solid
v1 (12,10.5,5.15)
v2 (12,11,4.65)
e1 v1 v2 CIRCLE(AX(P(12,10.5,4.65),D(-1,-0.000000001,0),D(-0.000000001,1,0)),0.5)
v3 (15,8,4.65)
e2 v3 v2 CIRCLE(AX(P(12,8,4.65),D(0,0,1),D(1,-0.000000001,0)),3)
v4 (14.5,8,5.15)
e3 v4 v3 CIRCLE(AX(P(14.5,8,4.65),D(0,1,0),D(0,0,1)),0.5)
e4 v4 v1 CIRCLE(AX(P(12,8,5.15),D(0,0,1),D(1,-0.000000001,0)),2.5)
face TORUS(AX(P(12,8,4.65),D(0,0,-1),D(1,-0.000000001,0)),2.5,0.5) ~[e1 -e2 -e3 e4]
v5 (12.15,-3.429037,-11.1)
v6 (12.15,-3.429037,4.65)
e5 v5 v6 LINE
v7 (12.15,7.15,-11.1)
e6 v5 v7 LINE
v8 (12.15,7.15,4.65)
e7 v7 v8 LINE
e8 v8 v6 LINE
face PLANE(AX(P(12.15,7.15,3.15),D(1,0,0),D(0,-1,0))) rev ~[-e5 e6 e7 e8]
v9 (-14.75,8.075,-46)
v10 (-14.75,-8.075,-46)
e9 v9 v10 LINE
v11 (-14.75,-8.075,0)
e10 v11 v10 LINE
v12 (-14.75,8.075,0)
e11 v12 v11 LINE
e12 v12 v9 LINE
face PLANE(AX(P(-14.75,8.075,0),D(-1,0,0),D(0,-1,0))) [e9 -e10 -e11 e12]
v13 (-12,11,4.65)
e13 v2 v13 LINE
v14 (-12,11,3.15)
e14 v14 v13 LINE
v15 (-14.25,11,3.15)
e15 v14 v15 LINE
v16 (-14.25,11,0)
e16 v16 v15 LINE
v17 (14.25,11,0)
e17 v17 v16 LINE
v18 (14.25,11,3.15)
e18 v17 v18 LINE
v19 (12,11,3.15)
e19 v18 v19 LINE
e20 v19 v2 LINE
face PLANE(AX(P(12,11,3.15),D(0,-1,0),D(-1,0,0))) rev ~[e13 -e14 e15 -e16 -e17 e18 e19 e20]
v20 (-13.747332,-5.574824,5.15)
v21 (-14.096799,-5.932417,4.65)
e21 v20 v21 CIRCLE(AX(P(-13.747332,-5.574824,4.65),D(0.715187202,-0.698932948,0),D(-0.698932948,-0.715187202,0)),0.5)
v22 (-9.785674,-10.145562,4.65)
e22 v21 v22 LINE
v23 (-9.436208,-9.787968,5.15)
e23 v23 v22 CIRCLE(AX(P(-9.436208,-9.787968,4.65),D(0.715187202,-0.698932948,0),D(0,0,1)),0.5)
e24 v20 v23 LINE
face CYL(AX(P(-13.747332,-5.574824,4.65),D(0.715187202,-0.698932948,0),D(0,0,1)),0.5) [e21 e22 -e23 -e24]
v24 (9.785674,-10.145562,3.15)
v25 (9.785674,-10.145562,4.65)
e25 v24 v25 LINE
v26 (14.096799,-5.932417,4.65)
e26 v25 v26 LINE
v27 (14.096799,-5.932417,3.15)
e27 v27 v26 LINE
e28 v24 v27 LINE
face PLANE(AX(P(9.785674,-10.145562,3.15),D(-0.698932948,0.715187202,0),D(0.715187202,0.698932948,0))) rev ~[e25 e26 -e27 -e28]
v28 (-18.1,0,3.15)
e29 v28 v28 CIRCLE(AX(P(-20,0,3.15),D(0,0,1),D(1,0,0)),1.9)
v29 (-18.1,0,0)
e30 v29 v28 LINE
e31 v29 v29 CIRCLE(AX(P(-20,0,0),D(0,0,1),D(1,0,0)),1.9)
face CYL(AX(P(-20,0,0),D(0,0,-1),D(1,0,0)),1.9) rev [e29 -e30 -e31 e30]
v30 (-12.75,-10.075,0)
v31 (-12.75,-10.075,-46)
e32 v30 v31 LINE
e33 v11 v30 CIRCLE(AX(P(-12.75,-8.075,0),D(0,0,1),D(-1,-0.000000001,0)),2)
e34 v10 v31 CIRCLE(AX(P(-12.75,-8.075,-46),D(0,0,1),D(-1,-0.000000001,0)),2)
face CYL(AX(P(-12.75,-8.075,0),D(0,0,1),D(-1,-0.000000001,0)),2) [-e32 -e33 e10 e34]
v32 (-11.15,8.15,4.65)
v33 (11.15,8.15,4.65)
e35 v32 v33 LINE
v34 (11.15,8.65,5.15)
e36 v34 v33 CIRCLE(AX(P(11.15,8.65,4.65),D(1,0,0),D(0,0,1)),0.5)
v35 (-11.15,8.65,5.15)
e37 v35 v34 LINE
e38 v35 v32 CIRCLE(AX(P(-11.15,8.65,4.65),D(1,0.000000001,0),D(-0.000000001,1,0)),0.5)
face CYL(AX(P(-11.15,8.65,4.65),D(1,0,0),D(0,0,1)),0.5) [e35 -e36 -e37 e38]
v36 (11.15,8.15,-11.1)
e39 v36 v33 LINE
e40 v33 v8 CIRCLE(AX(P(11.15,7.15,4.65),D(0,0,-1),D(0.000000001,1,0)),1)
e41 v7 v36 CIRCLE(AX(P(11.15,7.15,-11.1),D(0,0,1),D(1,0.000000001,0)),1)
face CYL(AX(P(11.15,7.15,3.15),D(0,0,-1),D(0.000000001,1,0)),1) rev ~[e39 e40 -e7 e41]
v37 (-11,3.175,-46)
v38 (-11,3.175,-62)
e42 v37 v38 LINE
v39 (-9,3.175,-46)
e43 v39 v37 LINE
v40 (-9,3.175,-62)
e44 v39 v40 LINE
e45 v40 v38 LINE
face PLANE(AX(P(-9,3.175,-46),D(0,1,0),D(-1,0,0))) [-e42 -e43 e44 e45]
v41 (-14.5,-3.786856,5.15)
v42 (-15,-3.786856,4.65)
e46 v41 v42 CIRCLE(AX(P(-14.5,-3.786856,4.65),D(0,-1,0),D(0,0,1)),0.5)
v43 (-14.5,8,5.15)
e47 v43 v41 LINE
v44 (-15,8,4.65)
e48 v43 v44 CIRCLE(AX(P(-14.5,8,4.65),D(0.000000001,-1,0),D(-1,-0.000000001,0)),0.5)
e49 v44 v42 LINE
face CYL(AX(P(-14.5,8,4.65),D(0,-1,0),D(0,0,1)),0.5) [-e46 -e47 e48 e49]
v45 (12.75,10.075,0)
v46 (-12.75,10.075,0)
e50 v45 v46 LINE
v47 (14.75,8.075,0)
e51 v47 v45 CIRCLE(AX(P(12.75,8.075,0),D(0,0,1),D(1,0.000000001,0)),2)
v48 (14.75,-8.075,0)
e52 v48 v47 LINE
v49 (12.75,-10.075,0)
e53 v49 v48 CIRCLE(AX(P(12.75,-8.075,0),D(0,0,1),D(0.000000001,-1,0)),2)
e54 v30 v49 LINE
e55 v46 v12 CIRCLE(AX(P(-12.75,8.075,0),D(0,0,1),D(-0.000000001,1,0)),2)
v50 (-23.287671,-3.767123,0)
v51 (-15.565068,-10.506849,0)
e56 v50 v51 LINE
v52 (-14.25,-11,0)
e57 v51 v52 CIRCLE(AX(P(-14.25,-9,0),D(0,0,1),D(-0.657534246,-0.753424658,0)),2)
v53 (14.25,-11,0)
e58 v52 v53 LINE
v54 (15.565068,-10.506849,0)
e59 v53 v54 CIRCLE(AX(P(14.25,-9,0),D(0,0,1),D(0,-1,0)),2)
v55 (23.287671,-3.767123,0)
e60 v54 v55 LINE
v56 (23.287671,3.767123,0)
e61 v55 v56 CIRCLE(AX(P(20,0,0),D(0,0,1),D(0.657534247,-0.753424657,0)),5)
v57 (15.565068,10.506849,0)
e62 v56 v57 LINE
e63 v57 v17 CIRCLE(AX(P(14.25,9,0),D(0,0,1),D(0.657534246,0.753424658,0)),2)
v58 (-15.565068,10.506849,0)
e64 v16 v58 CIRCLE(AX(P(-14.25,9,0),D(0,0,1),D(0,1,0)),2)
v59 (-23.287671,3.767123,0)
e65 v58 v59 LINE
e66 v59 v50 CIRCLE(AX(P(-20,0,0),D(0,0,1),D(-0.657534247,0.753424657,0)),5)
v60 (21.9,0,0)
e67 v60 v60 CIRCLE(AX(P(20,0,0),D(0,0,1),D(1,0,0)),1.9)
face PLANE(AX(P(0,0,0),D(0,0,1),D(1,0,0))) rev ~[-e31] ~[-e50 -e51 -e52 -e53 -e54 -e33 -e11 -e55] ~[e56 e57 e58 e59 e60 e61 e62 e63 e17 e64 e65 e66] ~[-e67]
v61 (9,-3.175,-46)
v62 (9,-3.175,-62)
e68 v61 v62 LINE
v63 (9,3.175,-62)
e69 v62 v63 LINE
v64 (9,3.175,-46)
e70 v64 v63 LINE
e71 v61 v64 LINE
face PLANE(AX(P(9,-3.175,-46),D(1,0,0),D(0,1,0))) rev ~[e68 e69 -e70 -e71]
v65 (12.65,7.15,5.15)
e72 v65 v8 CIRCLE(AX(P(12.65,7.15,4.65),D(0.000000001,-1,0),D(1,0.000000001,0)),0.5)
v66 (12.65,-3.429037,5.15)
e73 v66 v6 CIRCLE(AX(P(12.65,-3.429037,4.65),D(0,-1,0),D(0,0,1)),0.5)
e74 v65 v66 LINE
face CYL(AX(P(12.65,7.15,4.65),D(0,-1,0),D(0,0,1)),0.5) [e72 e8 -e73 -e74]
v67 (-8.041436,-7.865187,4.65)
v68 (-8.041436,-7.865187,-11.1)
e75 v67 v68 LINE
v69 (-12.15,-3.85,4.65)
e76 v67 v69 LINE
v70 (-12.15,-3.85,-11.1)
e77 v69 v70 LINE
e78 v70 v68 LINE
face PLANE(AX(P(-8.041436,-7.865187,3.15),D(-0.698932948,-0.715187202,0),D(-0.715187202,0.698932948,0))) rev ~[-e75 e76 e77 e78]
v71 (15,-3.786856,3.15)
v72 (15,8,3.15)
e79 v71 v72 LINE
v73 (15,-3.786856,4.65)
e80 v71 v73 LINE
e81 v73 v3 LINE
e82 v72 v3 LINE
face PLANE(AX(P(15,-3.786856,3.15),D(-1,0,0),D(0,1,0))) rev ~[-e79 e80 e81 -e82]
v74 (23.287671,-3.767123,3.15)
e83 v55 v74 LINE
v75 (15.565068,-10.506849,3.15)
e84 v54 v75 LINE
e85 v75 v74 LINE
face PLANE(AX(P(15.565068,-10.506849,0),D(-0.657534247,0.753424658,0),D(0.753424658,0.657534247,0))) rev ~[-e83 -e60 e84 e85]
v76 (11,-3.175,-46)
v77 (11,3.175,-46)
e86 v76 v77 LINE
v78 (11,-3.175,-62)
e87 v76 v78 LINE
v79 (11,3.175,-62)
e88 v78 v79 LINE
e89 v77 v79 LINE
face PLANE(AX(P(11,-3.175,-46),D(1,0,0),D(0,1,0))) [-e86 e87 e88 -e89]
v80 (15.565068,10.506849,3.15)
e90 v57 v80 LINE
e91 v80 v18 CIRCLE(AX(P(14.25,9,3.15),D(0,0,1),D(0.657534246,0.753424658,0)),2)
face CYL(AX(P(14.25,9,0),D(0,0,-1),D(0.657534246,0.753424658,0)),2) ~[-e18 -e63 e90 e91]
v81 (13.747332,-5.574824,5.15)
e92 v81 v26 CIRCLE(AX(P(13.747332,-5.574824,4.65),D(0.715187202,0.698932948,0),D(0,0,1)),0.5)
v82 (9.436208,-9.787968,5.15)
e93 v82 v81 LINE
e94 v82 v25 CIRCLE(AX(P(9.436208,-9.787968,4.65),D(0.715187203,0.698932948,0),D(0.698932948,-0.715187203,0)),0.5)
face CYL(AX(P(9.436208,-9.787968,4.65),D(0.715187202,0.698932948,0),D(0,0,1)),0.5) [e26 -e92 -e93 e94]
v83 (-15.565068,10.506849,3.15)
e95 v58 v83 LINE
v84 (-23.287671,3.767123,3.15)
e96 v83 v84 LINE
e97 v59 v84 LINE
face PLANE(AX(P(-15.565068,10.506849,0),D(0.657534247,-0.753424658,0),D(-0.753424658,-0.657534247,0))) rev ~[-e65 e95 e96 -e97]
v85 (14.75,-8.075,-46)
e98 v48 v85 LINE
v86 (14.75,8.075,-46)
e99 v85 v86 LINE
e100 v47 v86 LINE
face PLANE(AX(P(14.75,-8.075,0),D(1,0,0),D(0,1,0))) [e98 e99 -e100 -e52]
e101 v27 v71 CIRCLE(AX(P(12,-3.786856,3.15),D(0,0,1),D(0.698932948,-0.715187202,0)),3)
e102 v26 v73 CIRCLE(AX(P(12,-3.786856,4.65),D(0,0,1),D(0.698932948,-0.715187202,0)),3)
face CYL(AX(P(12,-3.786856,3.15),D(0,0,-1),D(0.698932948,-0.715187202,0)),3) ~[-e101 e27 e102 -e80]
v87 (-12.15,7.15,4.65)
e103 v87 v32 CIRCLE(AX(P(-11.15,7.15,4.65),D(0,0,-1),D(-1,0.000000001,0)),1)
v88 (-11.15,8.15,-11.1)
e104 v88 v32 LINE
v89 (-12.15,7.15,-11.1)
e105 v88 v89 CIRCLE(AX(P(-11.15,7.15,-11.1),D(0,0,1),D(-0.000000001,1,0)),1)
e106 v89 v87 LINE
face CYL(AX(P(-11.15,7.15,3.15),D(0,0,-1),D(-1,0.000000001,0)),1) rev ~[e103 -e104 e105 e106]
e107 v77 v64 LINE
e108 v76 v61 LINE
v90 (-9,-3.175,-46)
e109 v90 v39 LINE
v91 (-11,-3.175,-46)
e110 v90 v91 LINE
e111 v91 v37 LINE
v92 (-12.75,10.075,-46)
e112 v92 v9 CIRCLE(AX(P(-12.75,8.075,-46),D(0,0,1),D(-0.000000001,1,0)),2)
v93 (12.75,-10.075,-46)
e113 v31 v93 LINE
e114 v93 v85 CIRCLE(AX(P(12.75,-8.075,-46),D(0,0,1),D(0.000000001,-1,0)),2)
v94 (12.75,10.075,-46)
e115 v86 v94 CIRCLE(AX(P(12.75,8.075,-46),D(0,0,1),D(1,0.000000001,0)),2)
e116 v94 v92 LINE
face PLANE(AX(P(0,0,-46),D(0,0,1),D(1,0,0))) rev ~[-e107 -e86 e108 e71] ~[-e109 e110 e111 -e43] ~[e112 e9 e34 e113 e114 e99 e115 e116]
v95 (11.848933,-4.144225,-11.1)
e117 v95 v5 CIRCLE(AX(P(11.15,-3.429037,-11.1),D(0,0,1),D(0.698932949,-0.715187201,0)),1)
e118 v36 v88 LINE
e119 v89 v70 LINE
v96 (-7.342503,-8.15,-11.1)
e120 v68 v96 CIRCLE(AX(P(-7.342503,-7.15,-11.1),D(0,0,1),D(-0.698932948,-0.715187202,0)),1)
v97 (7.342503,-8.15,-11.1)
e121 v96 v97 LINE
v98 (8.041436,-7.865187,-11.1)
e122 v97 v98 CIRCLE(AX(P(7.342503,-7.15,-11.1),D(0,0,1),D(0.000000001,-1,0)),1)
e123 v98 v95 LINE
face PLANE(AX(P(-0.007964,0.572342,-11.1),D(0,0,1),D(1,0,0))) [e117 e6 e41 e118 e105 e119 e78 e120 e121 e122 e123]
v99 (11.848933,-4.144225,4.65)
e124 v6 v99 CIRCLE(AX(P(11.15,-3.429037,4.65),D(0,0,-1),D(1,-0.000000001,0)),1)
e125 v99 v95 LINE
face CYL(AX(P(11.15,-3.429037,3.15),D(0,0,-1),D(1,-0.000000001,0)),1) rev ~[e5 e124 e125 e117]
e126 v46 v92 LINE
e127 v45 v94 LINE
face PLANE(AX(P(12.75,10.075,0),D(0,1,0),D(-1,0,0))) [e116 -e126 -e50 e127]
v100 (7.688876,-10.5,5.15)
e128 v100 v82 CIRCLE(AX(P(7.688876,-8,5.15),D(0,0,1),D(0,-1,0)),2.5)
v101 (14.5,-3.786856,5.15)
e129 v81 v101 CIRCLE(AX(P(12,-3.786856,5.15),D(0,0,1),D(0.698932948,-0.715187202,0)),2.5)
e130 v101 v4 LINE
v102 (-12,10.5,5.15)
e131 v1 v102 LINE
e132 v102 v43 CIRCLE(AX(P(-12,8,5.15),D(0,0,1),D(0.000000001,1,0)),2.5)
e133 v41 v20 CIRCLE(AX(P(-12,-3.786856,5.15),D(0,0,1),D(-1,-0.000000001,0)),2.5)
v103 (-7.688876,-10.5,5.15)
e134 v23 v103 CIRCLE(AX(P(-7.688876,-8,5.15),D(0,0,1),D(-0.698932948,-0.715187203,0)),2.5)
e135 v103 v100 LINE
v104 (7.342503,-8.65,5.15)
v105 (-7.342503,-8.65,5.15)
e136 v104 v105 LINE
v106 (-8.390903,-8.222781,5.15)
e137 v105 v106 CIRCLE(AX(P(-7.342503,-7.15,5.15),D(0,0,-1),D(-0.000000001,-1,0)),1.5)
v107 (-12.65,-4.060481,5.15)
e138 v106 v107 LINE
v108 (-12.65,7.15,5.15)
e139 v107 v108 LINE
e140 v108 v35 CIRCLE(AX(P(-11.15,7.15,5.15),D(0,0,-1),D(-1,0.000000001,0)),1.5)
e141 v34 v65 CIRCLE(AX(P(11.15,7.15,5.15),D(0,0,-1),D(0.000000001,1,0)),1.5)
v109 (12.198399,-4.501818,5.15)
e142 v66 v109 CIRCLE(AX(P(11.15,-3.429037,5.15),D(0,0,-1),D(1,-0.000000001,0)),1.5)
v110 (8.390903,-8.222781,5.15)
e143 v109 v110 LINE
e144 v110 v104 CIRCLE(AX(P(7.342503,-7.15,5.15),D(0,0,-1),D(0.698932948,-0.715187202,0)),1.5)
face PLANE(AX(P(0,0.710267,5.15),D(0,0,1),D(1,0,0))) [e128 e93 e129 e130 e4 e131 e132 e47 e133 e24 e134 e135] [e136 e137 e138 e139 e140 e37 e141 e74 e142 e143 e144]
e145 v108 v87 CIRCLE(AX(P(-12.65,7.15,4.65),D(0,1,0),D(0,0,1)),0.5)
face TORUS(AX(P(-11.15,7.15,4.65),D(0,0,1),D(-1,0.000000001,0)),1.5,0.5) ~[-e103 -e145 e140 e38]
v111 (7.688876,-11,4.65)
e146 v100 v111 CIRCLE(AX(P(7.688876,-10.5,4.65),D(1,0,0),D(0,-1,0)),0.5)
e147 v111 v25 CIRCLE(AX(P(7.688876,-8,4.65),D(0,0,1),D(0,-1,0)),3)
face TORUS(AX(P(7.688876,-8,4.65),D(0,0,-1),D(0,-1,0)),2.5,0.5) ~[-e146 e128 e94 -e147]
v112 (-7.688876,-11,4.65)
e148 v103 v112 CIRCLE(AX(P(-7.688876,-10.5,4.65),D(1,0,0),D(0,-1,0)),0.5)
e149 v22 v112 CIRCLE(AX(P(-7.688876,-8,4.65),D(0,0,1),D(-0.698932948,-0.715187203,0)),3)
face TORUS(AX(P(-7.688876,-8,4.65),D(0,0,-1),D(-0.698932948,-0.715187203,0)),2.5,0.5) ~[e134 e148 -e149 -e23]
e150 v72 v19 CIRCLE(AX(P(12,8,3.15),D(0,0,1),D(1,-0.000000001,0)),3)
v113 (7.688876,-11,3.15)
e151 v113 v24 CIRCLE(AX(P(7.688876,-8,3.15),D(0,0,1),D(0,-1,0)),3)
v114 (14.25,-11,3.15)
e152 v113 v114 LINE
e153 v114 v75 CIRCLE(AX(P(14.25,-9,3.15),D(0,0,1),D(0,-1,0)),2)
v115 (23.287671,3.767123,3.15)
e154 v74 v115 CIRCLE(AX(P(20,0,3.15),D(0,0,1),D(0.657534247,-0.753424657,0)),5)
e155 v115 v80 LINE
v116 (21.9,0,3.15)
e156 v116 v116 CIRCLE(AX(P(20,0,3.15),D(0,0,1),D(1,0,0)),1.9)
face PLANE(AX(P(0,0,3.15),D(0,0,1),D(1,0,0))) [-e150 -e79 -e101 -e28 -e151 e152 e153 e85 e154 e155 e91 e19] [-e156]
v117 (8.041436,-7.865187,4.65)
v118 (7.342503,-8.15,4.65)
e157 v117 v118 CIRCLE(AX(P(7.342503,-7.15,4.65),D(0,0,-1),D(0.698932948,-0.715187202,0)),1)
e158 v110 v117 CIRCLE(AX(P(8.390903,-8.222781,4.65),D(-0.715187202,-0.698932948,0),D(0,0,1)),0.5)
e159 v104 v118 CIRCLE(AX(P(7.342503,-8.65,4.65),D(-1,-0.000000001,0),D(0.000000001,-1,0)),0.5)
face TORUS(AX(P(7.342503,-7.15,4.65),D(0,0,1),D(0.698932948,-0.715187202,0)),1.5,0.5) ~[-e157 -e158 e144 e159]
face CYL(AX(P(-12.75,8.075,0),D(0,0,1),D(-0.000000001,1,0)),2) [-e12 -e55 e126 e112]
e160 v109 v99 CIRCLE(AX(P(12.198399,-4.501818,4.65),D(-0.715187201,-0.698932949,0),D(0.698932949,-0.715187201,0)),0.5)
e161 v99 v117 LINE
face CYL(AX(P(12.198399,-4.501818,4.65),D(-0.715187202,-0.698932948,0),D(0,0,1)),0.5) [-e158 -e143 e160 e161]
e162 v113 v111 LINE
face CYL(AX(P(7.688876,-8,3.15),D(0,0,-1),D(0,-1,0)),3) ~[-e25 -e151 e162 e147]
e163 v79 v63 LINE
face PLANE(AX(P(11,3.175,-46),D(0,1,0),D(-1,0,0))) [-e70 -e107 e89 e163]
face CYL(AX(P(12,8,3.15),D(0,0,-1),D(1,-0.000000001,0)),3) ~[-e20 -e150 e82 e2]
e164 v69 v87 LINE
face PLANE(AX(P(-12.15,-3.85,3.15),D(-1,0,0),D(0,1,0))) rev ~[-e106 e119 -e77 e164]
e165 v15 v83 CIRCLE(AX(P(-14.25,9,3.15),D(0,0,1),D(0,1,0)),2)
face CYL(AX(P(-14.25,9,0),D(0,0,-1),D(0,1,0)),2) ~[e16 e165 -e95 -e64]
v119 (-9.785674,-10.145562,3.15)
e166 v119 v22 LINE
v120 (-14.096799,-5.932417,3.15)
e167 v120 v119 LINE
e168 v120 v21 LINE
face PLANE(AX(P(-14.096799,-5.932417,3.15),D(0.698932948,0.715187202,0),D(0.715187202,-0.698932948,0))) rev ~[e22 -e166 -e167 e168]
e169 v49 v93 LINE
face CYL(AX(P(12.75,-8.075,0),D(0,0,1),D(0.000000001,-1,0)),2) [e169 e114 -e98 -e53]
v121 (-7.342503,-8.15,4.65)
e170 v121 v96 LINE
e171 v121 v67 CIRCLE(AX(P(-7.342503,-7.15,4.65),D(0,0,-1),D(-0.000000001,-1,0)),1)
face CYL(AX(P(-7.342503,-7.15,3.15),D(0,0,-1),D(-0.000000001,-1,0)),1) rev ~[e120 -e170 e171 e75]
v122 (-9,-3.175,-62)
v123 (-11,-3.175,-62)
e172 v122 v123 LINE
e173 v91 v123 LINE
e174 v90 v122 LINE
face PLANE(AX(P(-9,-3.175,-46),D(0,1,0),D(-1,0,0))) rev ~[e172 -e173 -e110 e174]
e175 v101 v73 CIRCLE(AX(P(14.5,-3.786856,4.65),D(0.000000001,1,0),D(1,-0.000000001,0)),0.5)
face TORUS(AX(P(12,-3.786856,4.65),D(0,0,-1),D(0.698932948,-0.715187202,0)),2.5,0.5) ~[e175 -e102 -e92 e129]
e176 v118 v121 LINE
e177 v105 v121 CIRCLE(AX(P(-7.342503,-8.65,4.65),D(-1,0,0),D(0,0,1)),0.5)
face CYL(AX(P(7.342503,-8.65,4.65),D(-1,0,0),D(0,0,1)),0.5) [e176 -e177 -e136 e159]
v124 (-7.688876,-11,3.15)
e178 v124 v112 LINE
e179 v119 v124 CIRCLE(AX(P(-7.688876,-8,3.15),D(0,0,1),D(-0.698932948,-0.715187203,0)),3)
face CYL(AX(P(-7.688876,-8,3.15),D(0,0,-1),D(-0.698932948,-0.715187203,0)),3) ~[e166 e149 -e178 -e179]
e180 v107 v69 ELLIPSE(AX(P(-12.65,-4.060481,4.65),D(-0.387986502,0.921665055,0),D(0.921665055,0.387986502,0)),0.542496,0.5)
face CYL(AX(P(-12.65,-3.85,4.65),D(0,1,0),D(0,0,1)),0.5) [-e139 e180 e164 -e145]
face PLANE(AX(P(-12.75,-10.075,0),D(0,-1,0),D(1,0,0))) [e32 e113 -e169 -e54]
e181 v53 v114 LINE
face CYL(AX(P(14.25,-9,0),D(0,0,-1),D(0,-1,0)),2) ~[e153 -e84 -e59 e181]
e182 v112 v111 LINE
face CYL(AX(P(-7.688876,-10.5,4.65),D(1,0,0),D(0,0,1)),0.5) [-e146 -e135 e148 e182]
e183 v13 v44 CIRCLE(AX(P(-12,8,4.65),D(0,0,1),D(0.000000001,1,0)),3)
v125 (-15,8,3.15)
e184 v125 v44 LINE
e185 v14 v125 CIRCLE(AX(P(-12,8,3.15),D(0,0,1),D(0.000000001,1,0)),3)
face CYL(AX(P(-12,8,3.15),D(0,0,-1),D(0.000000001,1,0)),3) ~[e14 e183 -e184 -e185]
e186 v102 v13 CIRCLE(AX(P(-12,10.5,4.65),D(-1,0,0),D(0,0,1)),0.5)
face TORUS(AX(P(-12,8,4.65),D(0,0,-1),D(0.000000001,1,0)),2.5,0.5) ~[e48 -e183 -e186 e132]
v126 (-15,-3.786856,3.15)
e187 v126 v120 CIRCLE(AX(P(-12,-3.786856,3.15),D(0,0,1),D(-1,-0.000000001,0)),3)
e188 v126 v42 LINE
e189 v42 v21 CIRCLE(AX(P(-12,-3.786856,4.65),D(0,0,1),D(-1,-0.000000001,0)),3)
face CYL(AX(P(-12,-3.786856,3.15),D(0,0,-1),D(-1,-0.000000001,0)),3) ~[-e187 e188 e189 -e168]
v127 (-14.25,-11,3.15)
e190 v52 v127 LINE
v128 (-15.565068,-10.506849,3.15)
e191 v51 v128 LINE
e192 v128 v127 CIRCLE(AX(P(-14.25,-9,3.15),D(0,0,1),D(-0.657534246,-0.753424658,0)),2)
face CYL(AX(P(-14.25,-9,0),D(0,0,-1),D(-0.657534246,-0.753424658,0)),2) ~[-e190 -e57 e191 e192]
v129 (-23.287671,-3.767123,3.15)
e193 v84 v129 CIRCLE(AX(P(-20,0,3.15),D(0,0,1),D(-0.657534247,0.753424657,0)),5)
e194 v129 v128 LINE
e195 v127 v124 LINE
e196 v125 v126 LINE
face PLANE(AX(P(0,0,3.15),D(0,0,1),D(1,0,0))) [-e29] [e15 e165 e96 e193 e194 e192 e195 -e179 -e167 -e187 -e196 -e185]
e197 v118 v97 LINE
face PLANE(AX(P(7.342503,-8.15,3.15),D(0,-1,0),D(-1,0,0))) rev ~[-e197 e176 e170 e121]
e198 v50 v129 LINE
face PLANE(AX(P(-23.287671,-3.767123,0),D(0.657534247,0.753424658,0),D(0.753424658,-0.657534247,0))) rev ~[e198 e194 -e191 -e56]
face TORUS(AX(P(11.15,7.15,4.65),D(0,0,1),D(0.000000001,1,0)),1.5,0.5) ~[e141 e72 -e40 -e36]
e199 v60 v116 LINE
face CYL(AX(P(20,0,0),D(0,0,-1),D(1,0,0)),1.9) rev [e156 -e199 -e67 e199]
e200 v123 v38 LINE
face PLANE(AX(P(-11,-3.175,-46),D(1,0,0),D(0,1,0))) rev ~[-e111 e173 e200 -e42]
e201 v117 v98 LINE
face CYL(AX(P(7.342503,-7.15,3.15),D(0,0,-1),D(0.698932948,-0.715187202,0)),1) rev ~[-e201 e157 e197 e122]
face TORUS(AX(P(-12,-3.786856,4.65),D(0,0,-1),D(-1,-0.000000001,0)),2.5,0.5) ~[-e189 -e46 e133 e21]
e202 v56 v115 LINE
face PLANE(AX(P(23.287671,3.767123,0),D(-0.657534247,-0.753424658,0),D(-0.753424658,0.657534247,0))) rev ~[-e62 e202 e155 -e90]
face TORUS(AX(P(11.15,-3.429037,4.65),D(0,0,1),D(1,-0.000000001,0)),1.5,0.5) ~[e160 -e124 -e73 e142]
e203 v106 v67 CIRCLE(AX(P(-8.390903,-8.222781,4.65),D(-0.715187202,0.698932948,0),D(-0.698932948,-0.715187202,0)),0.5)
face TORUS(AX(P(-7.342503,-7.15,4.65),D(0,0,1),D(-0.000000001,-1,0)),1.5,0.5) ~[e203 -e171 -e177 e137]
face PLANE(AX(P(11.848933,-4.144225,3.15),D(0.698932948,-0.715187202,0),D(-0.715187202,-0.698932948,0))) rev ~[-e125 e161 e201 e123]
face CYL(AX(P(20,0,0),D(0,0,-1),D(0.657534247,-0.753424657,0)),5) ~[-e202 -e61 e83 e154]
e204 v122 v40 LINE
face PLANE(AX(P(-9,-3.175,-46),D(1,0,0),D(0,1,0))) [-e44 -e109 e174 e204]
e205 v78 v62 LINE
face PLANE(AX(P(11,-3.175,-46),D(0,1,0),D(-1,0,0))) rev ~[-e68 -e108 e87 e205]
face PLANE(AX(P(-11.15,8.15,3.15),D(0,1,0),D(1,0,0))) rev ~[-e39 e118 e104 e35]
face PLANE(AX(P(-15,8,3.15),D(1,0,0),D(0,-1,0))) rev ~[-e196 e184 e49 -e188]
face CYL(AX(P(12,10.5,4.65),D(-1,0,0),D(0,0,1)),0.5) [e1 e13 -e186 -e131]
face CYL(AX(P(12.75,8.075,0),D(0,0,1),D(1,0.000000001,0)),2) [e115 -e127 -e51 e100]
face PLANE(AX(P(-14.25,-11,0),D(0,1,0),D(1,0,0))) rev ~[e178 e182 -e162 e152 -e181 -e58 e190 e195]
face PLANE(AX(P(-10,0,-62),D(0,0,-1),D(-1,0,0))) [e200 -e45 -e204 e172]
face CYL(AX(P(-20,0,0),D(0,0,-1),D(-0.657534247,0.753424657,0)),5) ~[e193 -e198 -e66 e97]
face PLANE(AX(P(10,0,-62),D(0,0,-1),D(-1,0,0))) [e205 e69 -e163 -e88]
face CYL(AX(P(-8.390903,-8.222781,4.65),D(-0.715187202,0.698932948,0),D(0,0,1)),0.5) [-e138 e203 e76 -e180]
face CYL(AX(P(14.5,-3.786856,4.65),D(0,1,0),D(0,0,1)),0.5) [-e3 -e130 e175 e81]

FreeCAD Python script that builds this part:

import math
import FreeCAD as App
import Part
import Sketcher
Q = App.Units.Quantity


def edges_at(feature, points):
    """Names of the edges that pass closest to the given points."""
    edges = feature.Shape.Edges
    near = lambda p: min(range(len(edges)), key=lambda i: edges[i].distToShape(Part.Vertex(*p))[0])
    return sorted({f"Edge{near(p) + 1}" for p in points})

doc = App.newDocument("Part")
params = doc.addObject("Spreadsheet::Sheet", "Params")
for row, (alias, value) in enumerate([
    ("sketch1_radius", "5 mm"),
    ("sketch1_radius2", "2 mm"),
    ("sketch1_radius3", "1 mm"),
    ("sketch1_diameter", "3.8 mm"),
    ("sketch1_height", "11 mm"),
    ("pad1_length", "3.15 mm"),
    ("sketch2_radius", "3 mm"),
    ("sketch2_radius2", "1 mm"),
    ("sketch2_width", "24 mm"),
    ("sketch2_height", "11 mm"),
    ("sketch2_width2", "22.3 mm"),
    ("pad2_length", "2 mm"),
    ("fillet_radius", "0.5 mm"),
    ("sketch3_radius", "2 mm"),
    ("sketch3_width", "25.5 mm"),
    ("sketch3_height", "16.15 mm"),
    ("pad3_length", "46 mm"),
    ("sketch4_width", "2 mm"),
    ("sketch4_height", "6.35 mm"),
    ("pad4_length", "16 mm"),
    ("sketch5_radius", "1 mm"),
    ("sketch5_height", "11 mm"),
    ("sketch5_width", "22.3 mm"),
    ("pocket1_length", "11.1 mm"),
], start=1):
    params.set(f"A{row}", alias)
    params.set(f"B{row}", "=" + value)
    params.setAlias(f"B{row}", alias)

body = doc.addObject("PartDesign::Body", "Body")

# Sketch on XY plane
sketch1 = body.newObject("Sketcher::SketchObject", "Sketch")
sketch1.AttachmentSupport = (doc.getObject("XY_Plane"), [""])
sketch1.MapMode = "FlatFace"
sketch1.addGeometry(Part.LineSegment(App.Vector(-15.565068, 10.506849, 0), App.Vector(-23.287671, 3.767123, 0)), False)
sketch1.addGeometry(Part.ArcOfCircle(Part.Circle(App.Vector(-20, 0, 0), App.Vector(0, 0, 1), 5), math.radians(131.11209), math.radians(228.88791)), False)
sketch1.addGeometry(Part.LineSegment(App.Vector(-23.287671, -3.767123, 0), App.Vector(-15.565068, -10.506849, 0)), False)
sketch1.addGeometry(Part.ArcOfCircle(Part.Circle(App.Vector(-14.25, -9, 0), App.Vector(0, 0, 1), 2), math.radians(-131.11209), math.radians(-90)), False)
sketch1.addGeometry(Part.LineSegment(App.Vector(-14.25, -11, 0), App.Vector(14.25, -11, 0)), False)
sketch1.addGeometry(Part.ArcOfCircle(Part.Circle(App.Vector(14.25, -9, 0), App.Vector(0, 0, 1), 2), math.radians(-90), math.radians(-48.88791)), False)
sketch1.addGeometry(Part.LineSegment(App.Vector(15.565068, -10.506849, 0), App.Vector(23.287671, -3.767123, 0)), False)
sketch1.addGeometry(Part.ArcOfCircle(Part.Circle(App.Vector(20, 0, 0), App.Vector(0, 0, 1), 5), math.radians(-48.88791), math.radians(48.88791)), False)
sketch1.addGeometry(Part.LineSegment(App.Vector(23.287671, 3.767123, 0), App.Vector(15.565068, 10.506849, 0)), False)
sketch1.addGeometry(Part.ArcOfCircle(Part.Circle(App.Vector(14.25, 9, 0), App.Vector(0, 0, 1), 2), math.radians(48.88791), math.radians(90)), False)
sketch1.addGeometry(Part.LineSegment(App.Vector(14.25, 11, 0), App.Vector(-14.25, 11, 0)), False)
sketch1.addGeometry(Part.ArcOfCircle(Part.Circle(App.Vector(-14.25, 9, 0), App.Vector(0, 0, 1), 2), math.radians(90), math.radians(131.11209)), False)
sketch1.addGeometry(Part.Circle(App.Vector(-20, 0, 0), App.Vector(0, 0, 1), 1.9), False)
sketch1.addGeometry(Part.Circle(App.Vector(20, 0, 0), App.Vector(0, 0, 1), 1.9), False)
sketch1.addGeometry(Part.ArcOfCircle(Part.Circle(App.Vector(7.342503, -7.15, 0), App.Vector(0, 0, 1), 1), math.radians(-90), math.radians(-45.658543)), False)
sketch1.addGeometry(Part.LineSegment(App.Vector(7.342503, -8.15, 0), App.Vector(-7.342503, -8.15, 0)), False)
sketch1.addGeometry(Part.ArcOfCircle(Part.Circle(App.Vector(-7.342503, -7.15, 0), App.Vector(0, 0, 1), 1), math.radians(-134.341457), math.radians(-90)), False)
sketch1.addGeometry(Part.LineSegment(App.Vector(-8.041436, -7.865187, 0), App.Vector(-12.15, -3.85, 0)), False)
sketch1.addGeometry(Part.LineSegment(App.Vector(-12.15, -3.85, 0), App.Vector(-12.15, 7.15, 0)), False)
sketch1.addGeometry(Part.ArcOfCircle(Part.Circle(App.Vector(-11.15, 7.15, 0), App.Vector(0, 0, 1), 1), math.radians(90), math.radians(180)), False)
sketch1.addGeometry(Part.LineSegment(App.Vector(-11.15, 8.15, 0), App.Vector(11.15, 8.15, 0)), False)
sketch1.addGeometry(Part.ArcOfCircle(Part.Circle(App.Vector(11.15, 7.15, 0), App.Vector(0, 0, 1), 1), math.radians(0), math.radians(90)), False)
sketch1.addGeometry(Part.LineSegment(App.Vector(12.15, 7.15, 0), App.Vector(12.15, -3.429037, 0)), False)
sketch1.addGeometry(Part.ArcOfCircle(Part.Circle(App.Vector(11.15, -3.429037, 0), App.Vector(0, 0, 1), 1), math.radians(-45.658543), math.radians(0)), False)
sketch1.addGeometry(Part.LineSegment(App.Vector(11.848933, -4.144225, 0), App.Vector(8.041436, -7.865187, 0)), False)
sketch1.addConstraint(Sketcher.Constraint("Tangent", 0, 2, 1, 1))
sketch1.addConstraint(Sketcher.Constraint("Tangent", 1, 2, 2, 1))
sketch1.addConstraint(Sketcher.Constraint("Tangent", 2, 2, 3, 1))
sketch1.addConstraint(Sketcher.Constraint("Tangent", 3, 2, 4, 1))
sketch1.addConstraint(Sketcher.Constraint("Tangent", 4, 2, 5, 1))
sketch1.addConstraint(Sketcher.Constraint("Tangent", 5, 2, 6, 1))
sketch1.addConstraint(Sketcher.Constraint("Tangent", 6, 2, 7, 1))
sketch1.addConstraint(Sketcher.Constraint("Tangent", 7, 2, 8, 1))
sketch1.addConstraint(Sketcher.Constraint("Tangent", 8, 2, 9, 1))
sketch1.addConstraint(Sketcher.Constraint("Tangent", 9, 2, 10, 1))
sketch1.addConstraint(Sketcher.Constraint("Tangent", 10, 2, 11, 1))
sketch1.addConstraint(Sketcher.Constraint("Tangent", 11, 2, 0, 1))
sketch1.addConstraint(Sketcher.Constraint("Tangent", 14, 1, 15, 1))
sketch1.addConstraint(Sketcher.Constraint("Tangent", 15, 2, 16, 2))
sketch1.addConstraint(Sketcher.Constraint("Tangent", 16, 1, 17, 1))
sketch1.addConstraint(Sketcher.Constraint("Coincident", 17, 2, 18, 1))
sketch1.addConstraint(Sketcher.Constraint("Tangent", 18, 2, 19, 2))
sketch1.addConstraint(Sketcher.Constraint("Tangent", 19, 1, 20, 1))
sketch1.addConstraint(Sketcher.Constraint("Tangent", 20, 2, 21, 2))
sketch1.addConstraint(Sketcher.Constraint("Tangent", 21, 1, 22, 1))
sketch1.addConstraint(Sketcher.Constraint("Tangent", 22, 2, 23, 2))
sketch1.addConstraint(Sketcher.Constraint("Tangent", 23, 1, 24, 1))
sketch1.addConstraint(Sketcher.Constraint("Tangent", 24, 2, 14, 2))
sketch1.addConstraint(Sketcher.Constraint("Horizontal", 4))
sketch1.addConstraint(Sketcher.Constraint("Horizontal", 10))
sketch1.addConstraint(Sketcher.Constraint("Horizontal", 15))
sketch1.addConstraint(Sketcher.Constraint("Vertical", 18))
sketch1.addConstraint(Sketcher.Constraint("Horizontal", 20))
sketch1.addConstraint(Sketcher.Constraint("Vertical", 22))
sketch1.addConstraint(Sketcher.Constraint("Coincident", 12, 3, 1, 3))
sketch1.addConstraint(Sketcher.Constraint("Coincident", 13, 3, 7, 3))
sketch1.addConstraint(Sketcher.Constraint("Equal", 3, 5))
sketch1.addConstraint(Sketcher.Constraint("Equal", 1, 7))
sketch1.addConstraint(Sketcher.Constraint("Equal", 5, 9))
sketch1.addConstraint(Sketcher.Constraint("Equal", 9, 11))
sketch1.addConstraint(Sketcher.Constraint("Equal", 12, 13))
sketch1.addConstraint(Sketcher.Constraint("Equal", 14, 16))
sketch1.addConstraint(Sketcher.Constraint("Equal", 16, 19))
sketch1.addConstraint(Sketcher.Constraint("Equal", 19, 21))
sketch1.addConstraint(Sketcher.Constraint("Equal", 21, 23))
sketch1.addConstraint(Sketcher.Constraint("Symmetric", 1, 3, 7, 3, -1, 1))
sketch1.addConstraint(Sketcher.Constraint("Symmetric", 3, 3, 9, 3, -1, 1))
sketch1.addConstraint(Sketcher.Constraint("Symmetric", 2, 2, 5, 2, -2))
sketch1.addConstraint(Sketcher.Constraint("Symmetric", 16, 1, 24, 2, -2))
sketch1.addConstraint(Sketcher.Constraint("Parallel", 0, 6))
sketch1.addConstraint(Sketcher.Constraint("Radius", 1, Q("5 mm")))
sketch1.addConstraint(Sketcher.Constraint("Radius", 3, Q("2 mm")))
sketch1.addConstraint(Sketcher.Constraint("Radius", 14, Q("1 mm")))
sketch1.addConstraint(Sketcher.Constraint("Diameter", 12, Q("3.8 mm")))
sketch1.addConstraint(Sketcher.Constraint("DistanceY", 18, 1, 18, 2, Q("11 mm")))
sketch1.addConstraint(Sketcher.Constraint("DistanceX", 4, 1, 4, 2, Q("28.5 mm")))
sketch1.addConstraint(Sketcher.Constraint("DistanceX", 20, 1, 20, 2, Q("22.3 mm")))
sketch1.addConstraint(Sketcher.Constraint("DistanceX", 1, 3, -1, 1, Q("20 mm")))
sketch1.addConstraint(Sketcher.Constraint("DistanceY", 3, 3, -1, 1, Q("9 mm")))
sketch1.addConstraint(Sketcher.Constraint("DistanceX", 11, 3, 19, 3, Q("3.1 mm")))
sketch1.addConstraint(Sketcher.Constraint("DistanceY", 16, 3, 19, 3, Q("14.3 mm")))
sketch1.addConstraint(Sketcher.Constraint("DistanceY", 14, 3, -1, 1, Q("7.15 mm")))
sketch1.addConstraint(Sketcher.Constraint("Distance", 17, Q("5.744739 mm")))
sketch1.setExpression("Constraints[45]", "Params.sketch1_radius")
sketch1.setExpression("Constraints[46]", "Params.sketch1_radius2")
sketch1.setExpression("Constraints[47]", "Params.sketch1_radius3")
sketch1.setExpression("Constraints[48]", "Params.sketch1_diameter")
sketch1.setExpression("Constraints[49]", "Params.sketch1_height")
pad1 = body.newObject("PartDesign::Pad", "Pad")
pad1.Profile = sketch1
pad1.setExpression("Length", "Params.pad1_length")

# Sketch on XY plane
sketch2 = body.newObject("Sketcher::SketchObject", "Sketch001")
sketch2.AttachmentSupport = (doc.getObject("XY_Plane"), [""])
sketch2.MapMode = "FlatFace"
sketch2.AttachmentOffset = App.Placement(App.Vector(0, 0, 3.15), App.Rotation())
sketch2.addGeometry(Part.LineSegment(App.Vector(15, -3.786856, 0), App.Vector(15, 8, 0)), False)
sketch2.addGeometry(Part.ArcOfCircle(Part.Circle(App.Vector(12, 8, 0), App.Vector(0, 0, 1), 3), math.radians(0), math.radians(90)), False)
sketch2.addGeometry(Part.LineSegment(App.Vector(12, 11, 0), App.Vector(-12, 11, 0)), False)
sketch2.addGeometry(Part.ArcOfCircle(Part.Circle(App.Vector(-12, 8, 0), App.Vector(0, 0, 1), 3), math.radians(90), math.radians(180)), False)
sketch2.addGeometry(Part.LineSegment(App.Vector(-15, 8, 0), App.Vector(-15, -3.786856, 0)), False)
sketch2.addGeometry(Part.ArcOfCircle(Part.Circle(App.Vector(-12, -3.786856, 0), App.Vector(0, 0, 1), 3), math.radians(-180), math.radians(-134.341457)), False)
sketch2.addGeometry(Part.LineSegment(App.Vector(-14.096799, -5.932417, 0), App.Vector(-9.785674, -10.145562, 0)), False)
sketch2.addGeometry(Part.ArcOfCircle(Part.Circle(App.Vector(-7.688876, -8, 0), App.Vector(0, 0, 1), 3), math.radians(-134.341457), math.radians(-90)), False)
sketch2.addGeometry(Part.LineSegment(App.Vector(-7.688876, -11, 0), App.Vector(7.688876, -11, 0)), False)
sketch2.addGeometry(Part.ArcOfCircle(Part.Circle(App.Vector(7.688876, -8, 0), App.Vector(0, 0, 1), 3), math.radians(-90), math.radians(-45.658543)), False)
sketch2.addGeometry(Part.LineSegment(App.Vector(9.785674, -10.145562, 0), App.Vector(14.096799, -5.932417, 0)), False)
sketch2.addGeometry(Part.ArcOfCircle(Part.Circle(App.Vector(12, -3.786856, 0), App.Vector(0, 0, 1), 3), math.radians(-45.658543), math.radians(0)), False)
sketch2.addGeometry(Part.ArcOfCircle(Part.Circle(App.Vector(-7.342503, -7.15, 0), App.Vector(0, 0, 1), 1), math.radians(-134.341457), math.radians(-90)), False)
sketch2.addGeometry(Part.LineSegment(App.Vector(-8.041436, -7.865187, 0), App.Vector(-12.15, -3.85, 0)), False)
sketch2.addGeometry(Part.LineSegment(App.Vector(-12.15, -3.85, 0), App.Vector(-12.15, 7.15, 0)), False)
sketch2.addGeometry(Part.ArcOfCircle(Part.Circle(App.Vector(-11.15, 7.15, 0), App.Vector(0, 0, 1), 1), math.radians(90), math.radians(180)), False)
sketch2.addGeometry(Part.LineSegment(App.Vector(-11.15, 8.15, 0), App.Vector(11.15, 8.15, 0)), False)
sketch2.addGeometry(Part.ArcOfCircle(Part.Circle(App.Vector(11.15, 7.15, 0), App.Vector(0, 0, 1), 1), math.radians(0), math.radians(90)), False)
sketch2.addGeometry(Part.LineSegment(App.Vector(12.15, 7.15, 0), App.Vector(12.15, -3.429037, 0)), False)
sketch2.addGeometry(Part.ArcOfCircle(Part.Circle(App.Vector(11.15, -3.429037, 0), App.Vector(0, 0, 1), 1), math.radians(-45.658543), math.radians(0)), False)
sketch2.addGeometry(Part.LineSegment(App.Vector(11.848933, -4.144225, 0), App.Vector(8.041436, -7.865187, 0)), False)
sketch2.addGeometry(Part.ArcOfCircle(Part.Circle(App.Vector(7.342503, -7.15, 0), App.Vector(0, 0, 1), 1), math.radians(-90), math.radians(-45.658543)), False)
sketch2.addGeometry(Part.LineSegment(App.Vector(7.342503, -8.15, 0), App.Vector(-7.342503, -8.15, 0)), False)
sketch2.addConstraint(Sketcher.Constraint("Tangent", 0, 2, 1, 1))
sketch2.addConstraint(Sketcher.Constraint("Tangent", 1, 2, 2, 1))
sketch2.addConstraint(Sketcher.Constraint("Tangent", 2, 2, 3, 1))
sketch2.addConstraint(Sketcher.Constraint("Tangent", 3, 2, 4, 1))
sketch2.addConstraint(Sketcher.Constraint("Tangent", 4, 2, 5, 1))
sketch2.addConstraint(Sketcher.Constraint("Tangent", 5, 2, 6, 1))
sketch2.addConstraint(Sketcher.Constraint("Tangent", 6, 2, 7, 1))
sketch2.addConstraint(Sketcher.Constraint("Tangent", 7, 2, 8, 1))
sketch2.addConstraint(Sketcher.Constraint("Tangent", 8, 2, 9, 1))
sketch2.addConstraint(Sketcher.Constraint("Tangent", 9, 2, 10, 1))
sketch2.addConstraint(Sketcher.Constraint("Tangent", 10, 2, 11, 1))
sketch2.addConstraint(Sketcher.Constraint("Tangent", 11, 2, 0, 1))
sketch2.addConstraint(Sketcher.Constraint("Tangent", 12, 1, 13, 1))
sketch2.addConstraint(Sketcher.Constraint("Coincident", 13, 2, 14, 1))
sketch2.addConstraint(Sketcher.Constraint("Tangent", 14, 2, 15, 2))
sketch2.addConstraint(Sketcher.Constraint("Tangent", 15, 1, 16, 1))
sketch2.addConstraint(Sketcher.Constraint("Tangent", 16, 2, 17, 2))
sketch2.addConstraint(Sketcher.Constraint("Tangent", 17, 1, 18, 1))
sketch2.addConstraint(Sketcher.Constraint("Tangent", 18, 2, 19, 2))
sketch2.addConstraint(Sketcher.Constraint("Tangent", 19, 1, 20, 1))
sketch2.addConstraint(Sketcher.Constraint("Tangent", 20, 2, 21, 2))
sketch2.addConstraint(Sketcher.Constraint("Tangent", 21, 1, 22, 1))
sketch2.addConstraint(Sketcher.Constraint("Tangent", 22, 2, 12, 2))
sketch2.addConstraint(Sketcher.Constraint("Vertical", 0))
sketch2.addConstraint(Sketcher.Constraint("Horizontal", 2))
sketch2.addConstraint(Sketcher.Constraint("Vertical", 4))
sketch2.addConstraint(Sketcher.Constraint("Horizontal", 8))
sketch2.addConstraint(Sketcher.Constraint("Vertical", 14))
sketch2.addConstraint(Sketcher.Constraint("Horizontal", 16))
sketch2.addConstraint(Sketcher.Constraint("Vertical", 18))
sketch2.addConstraint(Sketcher.Constraint("Horizontal", 22))
sketch2.addConstraint(Sketcher.Constraint("Equal", 1, 3))
sketch2.addConstraint(Sketcher.Constraint("Equal", 3, 5))
sketch2.addConstraint(Sketcher.Constraint("Equal", 5, 7))
sketch2.addConstraint(Sketcher.Constraint("Equal", 7, 9))
sketch2.addConstraint(Sketcher.Constraint("Equal", 9, 11))
sketch2.addConstraint(Sketcher.Constraint("Equal", 12, 15))
sketch2.addConstraint(Sketcher.Constraint("Equal", 15, 17))
sketch2.addConstraint(Sketcher.Constraint("Equal", 17, 19))
sketch2.addConstraint(Sketcher.Constraint("Equal", 19, 21))
sketch2.addConstraint(Sketcher.Constraint("Symmetric", 5, 3, 11, 3, -2))
sketch2.addConstraint(Sketcher.Constraint("Symmetric", 12, 1, 20, 2, -2))
sketch2.addConstraint(Sketcher.Constraint("Parallel", 6, 13))
sketch2.addConstraint(Sketcher.Constraint("Parallel", 10, 20))
sketch2.addConstraint(Sketcher.Constraint("Radius", 1, Q("3 mm")))
sketch2.addConstraint(Sketcher.Constraint("Radius", 12, Q("1 mm")))
sketch2.addConstraint(Sketcher.Constraint("DistanceX", 2, 2, 2, 1, Q("24 mm")))
sketch2.addConstraint(Sketcher.Constraint("DistanceY", 14, 1, 14, 2, Q("11 mm")))
sketch2.addConstraint(Sketcher.Constraint("DistanceX", 16, 1, 16, 2, Q("22.3 mm")))
sketch2.addConstraint(Sketcher.Constraint("DistanceY", -1, 1, 1, 3, Q("8 mm")))
sketch2.addConstraint(Sketcher.Constraint("DistanceY", 7, 3, -1, 1, Q("8 mm")))
sketch2.addConstraint(Sketcher.Constraint("DistanceY", 12, 3, 15, 3, Q("14.3 mm")))
sketch2.addConstraint(Sketcher.Constraint("DistanceY", 12, 3, -1, 1, Q("7.15 mm")))
sketch2.addConstraint(Sketcher.Constraint("DistanceX", 15, 3, -1, 1, Q("11.15 mm")))
sketch2.addConstraint(Sketcher.Constraint("DistanceX", 8, 1, 8, 2, Q("15.377751 mm")))
sketch2.addConstraint(Sketcher.Constraint("DistanceX", 5, 2, -1, 1, Q("14.096799 mm")))
sketch2.setExpression("Constraints[44]", "Params.sketch2_radius")
sketch2.setExpression("Constraints[45]", "Params.sketch2_radius2")
sketch2.setExpression("Constraints[46]", "Params.sketch2_width")
sketch2.setExpression("Constraints[47]", "Params.sketch2_height")
sketch2.setExpression("Constraints[48]", "Params.sketch2_width2")
pad2 = body.newObject("PartDesign::Pad", "Pad001")
pad2.Profile = sketch2
pad2.setExpression("Length", "Params.pad2_length")
doc.recompute()

fillet = body.newObject("PartDesign::Fillet", "Fillet")
fillet.Base = (pad2, edges_at(pad2, [
    (-12.15, 1.65, 5.15),
    (-10.096, -5.858, 5.15),
    (8.821, -10.778, 5.15),
    (11.941, -8.039, 5.15),
    (14.765, -4.951, 5.15),
    (15, 2.107, 5.15),
    (14.121, 10.121, 5.15),
    (0, 11, 5.15),
    (-14.121, 10.121, 5.15),
    (-15, 2.107, 5.15),
    (-14.765, -4.951, 5.15),
    (-11.941, -8.039, 5.15),
    (-8.821, -10.778, 5.15),
    (0, -11, 5.15),
    (-7.72, -8.076, 5.15),
    (0, -8.15, 5.15),
    (7.72, -8.076, 5.15),
    (9.945, -6.005, 5.15),
    (12.072, -3.817, 5.15),
    (12.15, 1.86, 5.15),
    (11.857, 7.857, 5.15),
    (0, 8.15, 5.15),
    (-11.857, 7.857, 5.15),
]))
fillet.setExpression("Radius", "Params.fillet_radius")

# Sketch on XY plane
sketch3 = body.newObject("Sketcher::SketchObject", "Sketch002")
sketch3.AttachmentSupport = (doc.getObject("XY_Plane"), [""])
sketch3.MapMode = "FlatFace"
sketch3.addGeometry(Part.LineSegment(App.Vector(12.75, -10.075, 0), App.Vector(-12.75, -10.075, 0)), False)
sketch3.addGeometry(Part.ArcOfCircle(Part.Circle(App.Vector(-12.75, -8.075, 0), App.Vector(0, 0, 1), 2), math.radians(-180), math.radians(-90)), False)
sketch3.addGeometry(Part.LineSegment(App.Vector(-14.75, -8.075, 0), App.Vector(-14.75, 8.075, 0)), False)
sketch3.addGeometry(Part.ArcOfCircle(Part.Circle(App.Vector(-12.75, 8.075, 0), App.Vector(0, 0, 1), 2), math.radians(90), math.radians(180)), False)
sketch3.addGeometry(Part.LineSegment(App.Vector(-12.75, 10.075, 0), App.Vector(12.75, 10.075, 0)), False)
sketch3.addGeometry(Part.ArcOfCircle(Part.Circle(App.Vector(12.75, 8.075, 0), App.Vector(0, 0, 1), 2), math.radians(0), math.radians(90)), False)
sketch3.addGeometry(Part.LineSegment(App.Vector(14.75, 8.075, 0), App.Vector(14.75, -8.075, 0)), False)
sketch3.addGeometry(Part.ArcOfCircle(Part.Circle(App.Vector(12.75, -8.075, 0), App.Vector(0, 0, 1), 2), math.radians(-90), math.radians(0)), False)
sketch3.addConstraint(Sketcher.Constraint("Tangent", 0, 2, 1, 2))
sketch3.addConstraint(Sketcher.Constraint("Tangent", 1, 1, 2, 1))
sketch3.addConstraint(Sketcher.Constraint("Tangent", 2, 2, 3, 2))
sketch3.addConstraint(Sketcher.Constraint("Tangent", 3, 1, 4, 1))
sketch3.addConstraint(Sketcher.Constraint("Tangent", 4, 2, 5, 2))
sketch3.addConstraint(Sketcher.Constraint("Tangent", 5, 1, 6, 1))
sketch3.addConstraint(Sketcher.Constraint("Tangent", 6, 2, 7, 2))
sketch3.addConstraint(Sketcher.Constraint("Tangent", 7, 1, 0, 1))
sketch3.addConstraint(Sketcher.Constraint("Horizontal", 0))
sketch3.addConstraint(Sketcher.Constraint("Vertical", 2))
sketch3.addConstraint(Sketcher.Constraint("Horizontal", 4))
sketch3.addConstraint(Sketcher.Constraint("Vertical", 6))
sketch3.addConstraint(Sketcher.Constraint("Equal", 1, 3))
sketch3.addConstraint(Sketcher.Constraint("Equal", 3, 5))
sketch3.addConstraint(Sketcher.Constraint("Equal", 5, 7))
sketch3.addConstraint(Sketcher.Constraint("Symmetric", 1, 3, 5, 3, -1, 1))
sketch3.addConstraint(Sketcher.Constraint("Radius", 1, Q("2 mm")))
sketch3.addConstraint(Sketcher.Constraint("DistanceX", 0, 2, 0, 1, Q("25.5 mm")))
sketch3.addConstraint(Sketcher.Constraint("DistanceY", 2, 1, 2, 2, Q("16.15 mm")))
sketch3.setExpression("Constraints[16]", "Params.sketch3_radius")
sketch3.setExpression("Constraints[17]", "Params.sketch3_width")
sketch3.setExpression("Constraints[18]", "Params.sketch3_height")
pad3 = body.newObject("PartDesign::Pad", "Pad002")
pad3.Profile = sketch3
pad3.setExpression("Length", "Params.pad3_length")
pad3.Reversed = True

# Sketch on XY plane
sketch4 = body.newObject("Sketcher::SketchObject", "Sketch003")
sketch4.AttachmentSupport = (doc.getObject("XY_Plane"), [""])
sketch4.MapMode = "FlatFace"
sketch4.AttachmentOffset = App.Placement(App.Vector(0, 0, -46), App.Rotation())
sketch4.addGeometry(Part.LineSegment(App.Vector(11, 3.175, 0), App.Vector(11, -3.175, 0)), False)
sketch4.addGeometry(Part.LineSegment(App.Vector(11, -3.175, 0), App.Vector(9, -3.175, 0)), False)
sketch4.addGeometry(Part.LineSegment(App.Vector(9, -3.175, 0), App.Vector(9, 3.175, 0)), False)
sketch4.addGeometry(Part.LineSegment(App.Vector(9, 3.175, 0), App.Vector(11, 3.175, 0)), False)
sketch4.addGeometry(Part.LineSegment(App.Vector(-9, 3.175, 0), App.Vector(-9, -3.175, 0)), False)
sketch4.addGeometry(Part.LineSegment(App.Vector(-9, -3.175, 0), App.Vector(-11, -3.175, 0)), False)
sketch4.addGeometry(Part.LineSegment(App.Vector(-11, -3.175, 0), App.Vector(-11, 3.175, 0)), False)
sketch4.addGeometry(Part.LineSegment(App.Vector(-11, 3.175, 0), App.Vector(-9, 3.175, 0)), False)
sketch4.addConstraint(Sketcher.Constraint("Coincident", 0, 2, 1, 1))
sketch4.addConstraint(Sketcher.Constraint("Coincident", 1, 2, 2, 1))
sketch4.addConstraint(Sketcher.Constraint("Coincident", 2, 2, 3, 1))
sketch4.addConstraint(Sketcher.Constraint("Coincident", 3, 2, 0, 1))
sketch4.addConstraint(Sketcher.Constraint("Coincident", 4, 2, 5, 1))
sketch4.addConstraint(Sketcher.Constraint("Coincident", 5, 2, 6, 1))
sketch4.addConstraint(Sketcher.Constraint("Coincident", 6, 2, 7, 1))
sketch4.addConstraint(Sketcher.Constraint("Coincident", 7, 2, 4, 1))
sketch4.addConstraint(Sketcher.Constraint("Vertical", 0))
sketch4.addConstraint(Sketcher.Constraint("Horizontal", 1))
sketch4.addConstraint(Sketcher.Constraint("Vertical", 2))
sketch4.addConstraint(Sketcher.Constraint("Horizontal", 3))
sketch4.addConstraint(Sketcher.Constraint("Vertical", 4))
sketch4.addConstraint(Sketcher.Constraint("Horizontal", 5))
sketch4.addConstraint(Sketcher.Constraint("Vertical", 6))
sketch4.addConstraint(Sketcher.Constraint("Horizontal", 7))
sketch4.addConstraint(Sketcher.Constraint("Symmetric", 2, 2, 4, 2, -1, 1))
sketch4.addConstraint(Sketcher.Constraint("Symmetric", 0, 2, 6, 2, -1, 1))
sketch4.addConstraint(Sketcher.Constraint("Horizontal", 1, 2, 4, 2))
sketch4.addConstraint(Sketcher.Constraint("DistanceX", 1, 2, 1, 1, Q("2 mm")))
sketch4.addConstraint(Sketcher.Constraint("DistanceX", -1, 1, 0, 2, Q("11 mm")))
sketch4.addConstraint(Sketcher.Constraint("DistanceY", 0, 2, 0, 1, Q("6.35 mm")))
sketch4.setExpression("Constraints[19]", "Params.sketch4_width")
sketch4.setExpression("Constraints[21]", "Params.sketch4_height")
pad4 = body.newObject("PartDesign::Pad", "Pad003")
pad4.Profile = sketch4
pad4.setExpression("Length", "Params.pad4_length")
pad4.Reversed = True

# Sketch on XY plane
sketch5 = body.newObject("Sketcher::SketchObject", "Sketch004")
sketch5.AttachmentSupport = (doc.getObject("XY_Plane"), [""])
sketch5.MapMode = "FlatFace"
sketch5.AttachmentOffset = App.Placement(App.Vector(0, 0, -11.1), App.Rotation())
sketch5.addGeometry(Part.LineSegment(App.Vector(-12.15, 7.15, 0), App.Vector(-12.15, -3.85, 0)), False)
sketch5.addGeometry(Part.LineSegment(App.Vector(-12.15, -3.85, 0), App.Vector(-8.041436, -7.865187, 0)), False)
sketch5.addGeometry(Part.ArcOfCircle(Part.Circle(App.Vector(-7.342503, -7.15, 0), App.Vector(0, 0, 1), 1), math.radians(-134.341457), math.radians(-90)), False)
sketch5.addGeometry(Part.LineSegment(App.Vector(-7.342503, -8.15, 0), App.Vector(7.342503, -8.15, 0)), False)
sketch5.addGeometry(Part.ArcOfCircle(Part.Circle(App.Vector(7.342503, -7.15, 0), App.Vector(0, 0, 1), 1), math.radians(-90), math.radians(-45.658543)), False)
sketch5.addGeometry(Part.LineSegment(App.Vector(8.041436, -7.865187, 0), App.Vector(11.848933, -4.144225, 0)), False)
sketch5.addGeometry(Part.ArcOfCircle(Part.Circle(App.Vector(11.15, -3.429037, 0), App.Vector(0, 0, 1), 1), math.radians(-45.658543), math.radians(0)), False)
sketch5.addGeometry(Part.LineSegment(App.Vector(12.15, -3.429037, 0), App.Vector(12.15, 7.15, 0)), False)
sketch5.addGeometry(Part.ArcOfCircle(Part.Circle(App.Vector(11.15, 7.15, 0), App.Vector(0, 0, 1), 1), math.radians(0), math.radians(90)), False)
sketch5.addGeometry(Part.LineSegment(App.Vector(11.15, 8.15, 0), App.Vector(-11.15, 8.15, 0)), False)
sketch5.addGeometry(Part.ArcOfCircle(Part.Circle(App.Vector(-11.15, 7.15, 0), App.Vector(0, 0, 1), 1), math.radians(90), math.radians(180)), False)
sketch5.addConstraint(Sketcher.Constraint("Coincident", 0, 2, 1, 1))
sketch5.addConstraint(Sketcher.Constraint("Tangent", 1, 2, 2, 1))
sketch5.addConstraint(Sketcher.Constraint("Tangent", 2, 2, 3, 1))
sketch5.addConstraint(Sketcher.Constraint("Tangent", 3, 2, 4, 1))
sketch5.addConstraint(Sketcher.Constraint("Tangent", 4, 2, 5, 1))
sketch5.addConstraint(Sketcher.Constraint("Tangent", 5, 2, 6, 1))
sketch5.addConstraint(Sketcher.Constraint("Tangent", 6, 2, 7, 1))
sketch5.addConstraint(Sketcher.Constraint("Tangent", 7, 2, 8, 1))
sketch5.addConstraint(Sketcher.Constraint("Tangent", 8, 2, 9, 1))
sketch5.addConstraint(Sketcher.Constraint("Tangent", 9, 2, 10, 1))
sketch5.addConstraint(Sketcher.Constraint("Tangent", 10, 2, 0, 1))
sketch5.addConstraint(Sketcher.Constraint("Vertical", 0))
sketch5.addConstraint(Sketcher.Constraint("Horizontal", 3))
sketch5.addConstraint(Sketcher.Constraint("Vertical", 7))
sketch5.addConstraint(Sketcher.Constraint("Horizontal", 9))
sketch5.addConstraint(Sketcher.Constraint("Equal", 2, 4))
sketch5.addConstraint(Sketcher.Constraint("Equal", 4, 6))
sketch5.addConstraint(Sketcher.Constraint("Equal", 6, 8))
sketch5.addConstraint(Sketcher.Constraint("Equal", 8, 10))
sketch5.addConstraint(Sketcher.Constraint("Symmetric", 1, 2, 4, 2, -2))
sketch5.addConstraint(Sketcher.Constraint("Radius", 2, Q("1 mm")))
sketch5.addConstraint(Sketcher.Constraint("DistanceY", 0, 2, 0, 1, Q("11 mm")))
sketch5.addConstraint(Sketcher.Constraint("DistanceX", 9, 2, 9, 1, Q("22.3 mm")))
sketch5.addConstraint(Sketcher.Constraint("DistanceY", 4, 3, 8, 3, Q("14.3 mm")))
sketch5.addConstraint(Sketcher.Constraint("DistanceY", 2, 3, -1, 1, Q("7.15 mm")))
sketch5.addConstraint(Sketcher.Constraint("DistanceX", -1, 1, 6, 3, Q("11.15 mm")))
sketch5.addConstraint(Sketcher.Constraint("Distance", 1, Q("5.744739 mm")))
sketch5.setExpression("Constraints[20]", "Params.sketch5_radius")
sketch5.setExpression("Constraints[21]", "Params.sketch5_height")
sketch5.setExpression("Constraints[22]", "Params.sketch5_width")
pocket1 = body.newObject("PartDesign::Pocket", "Pocket")
pocket1.Profile = sketch5
pocket1.setExpression("Length", "Params.pocket1_length")
pocket1.Reversed = True

doc.recompute()
